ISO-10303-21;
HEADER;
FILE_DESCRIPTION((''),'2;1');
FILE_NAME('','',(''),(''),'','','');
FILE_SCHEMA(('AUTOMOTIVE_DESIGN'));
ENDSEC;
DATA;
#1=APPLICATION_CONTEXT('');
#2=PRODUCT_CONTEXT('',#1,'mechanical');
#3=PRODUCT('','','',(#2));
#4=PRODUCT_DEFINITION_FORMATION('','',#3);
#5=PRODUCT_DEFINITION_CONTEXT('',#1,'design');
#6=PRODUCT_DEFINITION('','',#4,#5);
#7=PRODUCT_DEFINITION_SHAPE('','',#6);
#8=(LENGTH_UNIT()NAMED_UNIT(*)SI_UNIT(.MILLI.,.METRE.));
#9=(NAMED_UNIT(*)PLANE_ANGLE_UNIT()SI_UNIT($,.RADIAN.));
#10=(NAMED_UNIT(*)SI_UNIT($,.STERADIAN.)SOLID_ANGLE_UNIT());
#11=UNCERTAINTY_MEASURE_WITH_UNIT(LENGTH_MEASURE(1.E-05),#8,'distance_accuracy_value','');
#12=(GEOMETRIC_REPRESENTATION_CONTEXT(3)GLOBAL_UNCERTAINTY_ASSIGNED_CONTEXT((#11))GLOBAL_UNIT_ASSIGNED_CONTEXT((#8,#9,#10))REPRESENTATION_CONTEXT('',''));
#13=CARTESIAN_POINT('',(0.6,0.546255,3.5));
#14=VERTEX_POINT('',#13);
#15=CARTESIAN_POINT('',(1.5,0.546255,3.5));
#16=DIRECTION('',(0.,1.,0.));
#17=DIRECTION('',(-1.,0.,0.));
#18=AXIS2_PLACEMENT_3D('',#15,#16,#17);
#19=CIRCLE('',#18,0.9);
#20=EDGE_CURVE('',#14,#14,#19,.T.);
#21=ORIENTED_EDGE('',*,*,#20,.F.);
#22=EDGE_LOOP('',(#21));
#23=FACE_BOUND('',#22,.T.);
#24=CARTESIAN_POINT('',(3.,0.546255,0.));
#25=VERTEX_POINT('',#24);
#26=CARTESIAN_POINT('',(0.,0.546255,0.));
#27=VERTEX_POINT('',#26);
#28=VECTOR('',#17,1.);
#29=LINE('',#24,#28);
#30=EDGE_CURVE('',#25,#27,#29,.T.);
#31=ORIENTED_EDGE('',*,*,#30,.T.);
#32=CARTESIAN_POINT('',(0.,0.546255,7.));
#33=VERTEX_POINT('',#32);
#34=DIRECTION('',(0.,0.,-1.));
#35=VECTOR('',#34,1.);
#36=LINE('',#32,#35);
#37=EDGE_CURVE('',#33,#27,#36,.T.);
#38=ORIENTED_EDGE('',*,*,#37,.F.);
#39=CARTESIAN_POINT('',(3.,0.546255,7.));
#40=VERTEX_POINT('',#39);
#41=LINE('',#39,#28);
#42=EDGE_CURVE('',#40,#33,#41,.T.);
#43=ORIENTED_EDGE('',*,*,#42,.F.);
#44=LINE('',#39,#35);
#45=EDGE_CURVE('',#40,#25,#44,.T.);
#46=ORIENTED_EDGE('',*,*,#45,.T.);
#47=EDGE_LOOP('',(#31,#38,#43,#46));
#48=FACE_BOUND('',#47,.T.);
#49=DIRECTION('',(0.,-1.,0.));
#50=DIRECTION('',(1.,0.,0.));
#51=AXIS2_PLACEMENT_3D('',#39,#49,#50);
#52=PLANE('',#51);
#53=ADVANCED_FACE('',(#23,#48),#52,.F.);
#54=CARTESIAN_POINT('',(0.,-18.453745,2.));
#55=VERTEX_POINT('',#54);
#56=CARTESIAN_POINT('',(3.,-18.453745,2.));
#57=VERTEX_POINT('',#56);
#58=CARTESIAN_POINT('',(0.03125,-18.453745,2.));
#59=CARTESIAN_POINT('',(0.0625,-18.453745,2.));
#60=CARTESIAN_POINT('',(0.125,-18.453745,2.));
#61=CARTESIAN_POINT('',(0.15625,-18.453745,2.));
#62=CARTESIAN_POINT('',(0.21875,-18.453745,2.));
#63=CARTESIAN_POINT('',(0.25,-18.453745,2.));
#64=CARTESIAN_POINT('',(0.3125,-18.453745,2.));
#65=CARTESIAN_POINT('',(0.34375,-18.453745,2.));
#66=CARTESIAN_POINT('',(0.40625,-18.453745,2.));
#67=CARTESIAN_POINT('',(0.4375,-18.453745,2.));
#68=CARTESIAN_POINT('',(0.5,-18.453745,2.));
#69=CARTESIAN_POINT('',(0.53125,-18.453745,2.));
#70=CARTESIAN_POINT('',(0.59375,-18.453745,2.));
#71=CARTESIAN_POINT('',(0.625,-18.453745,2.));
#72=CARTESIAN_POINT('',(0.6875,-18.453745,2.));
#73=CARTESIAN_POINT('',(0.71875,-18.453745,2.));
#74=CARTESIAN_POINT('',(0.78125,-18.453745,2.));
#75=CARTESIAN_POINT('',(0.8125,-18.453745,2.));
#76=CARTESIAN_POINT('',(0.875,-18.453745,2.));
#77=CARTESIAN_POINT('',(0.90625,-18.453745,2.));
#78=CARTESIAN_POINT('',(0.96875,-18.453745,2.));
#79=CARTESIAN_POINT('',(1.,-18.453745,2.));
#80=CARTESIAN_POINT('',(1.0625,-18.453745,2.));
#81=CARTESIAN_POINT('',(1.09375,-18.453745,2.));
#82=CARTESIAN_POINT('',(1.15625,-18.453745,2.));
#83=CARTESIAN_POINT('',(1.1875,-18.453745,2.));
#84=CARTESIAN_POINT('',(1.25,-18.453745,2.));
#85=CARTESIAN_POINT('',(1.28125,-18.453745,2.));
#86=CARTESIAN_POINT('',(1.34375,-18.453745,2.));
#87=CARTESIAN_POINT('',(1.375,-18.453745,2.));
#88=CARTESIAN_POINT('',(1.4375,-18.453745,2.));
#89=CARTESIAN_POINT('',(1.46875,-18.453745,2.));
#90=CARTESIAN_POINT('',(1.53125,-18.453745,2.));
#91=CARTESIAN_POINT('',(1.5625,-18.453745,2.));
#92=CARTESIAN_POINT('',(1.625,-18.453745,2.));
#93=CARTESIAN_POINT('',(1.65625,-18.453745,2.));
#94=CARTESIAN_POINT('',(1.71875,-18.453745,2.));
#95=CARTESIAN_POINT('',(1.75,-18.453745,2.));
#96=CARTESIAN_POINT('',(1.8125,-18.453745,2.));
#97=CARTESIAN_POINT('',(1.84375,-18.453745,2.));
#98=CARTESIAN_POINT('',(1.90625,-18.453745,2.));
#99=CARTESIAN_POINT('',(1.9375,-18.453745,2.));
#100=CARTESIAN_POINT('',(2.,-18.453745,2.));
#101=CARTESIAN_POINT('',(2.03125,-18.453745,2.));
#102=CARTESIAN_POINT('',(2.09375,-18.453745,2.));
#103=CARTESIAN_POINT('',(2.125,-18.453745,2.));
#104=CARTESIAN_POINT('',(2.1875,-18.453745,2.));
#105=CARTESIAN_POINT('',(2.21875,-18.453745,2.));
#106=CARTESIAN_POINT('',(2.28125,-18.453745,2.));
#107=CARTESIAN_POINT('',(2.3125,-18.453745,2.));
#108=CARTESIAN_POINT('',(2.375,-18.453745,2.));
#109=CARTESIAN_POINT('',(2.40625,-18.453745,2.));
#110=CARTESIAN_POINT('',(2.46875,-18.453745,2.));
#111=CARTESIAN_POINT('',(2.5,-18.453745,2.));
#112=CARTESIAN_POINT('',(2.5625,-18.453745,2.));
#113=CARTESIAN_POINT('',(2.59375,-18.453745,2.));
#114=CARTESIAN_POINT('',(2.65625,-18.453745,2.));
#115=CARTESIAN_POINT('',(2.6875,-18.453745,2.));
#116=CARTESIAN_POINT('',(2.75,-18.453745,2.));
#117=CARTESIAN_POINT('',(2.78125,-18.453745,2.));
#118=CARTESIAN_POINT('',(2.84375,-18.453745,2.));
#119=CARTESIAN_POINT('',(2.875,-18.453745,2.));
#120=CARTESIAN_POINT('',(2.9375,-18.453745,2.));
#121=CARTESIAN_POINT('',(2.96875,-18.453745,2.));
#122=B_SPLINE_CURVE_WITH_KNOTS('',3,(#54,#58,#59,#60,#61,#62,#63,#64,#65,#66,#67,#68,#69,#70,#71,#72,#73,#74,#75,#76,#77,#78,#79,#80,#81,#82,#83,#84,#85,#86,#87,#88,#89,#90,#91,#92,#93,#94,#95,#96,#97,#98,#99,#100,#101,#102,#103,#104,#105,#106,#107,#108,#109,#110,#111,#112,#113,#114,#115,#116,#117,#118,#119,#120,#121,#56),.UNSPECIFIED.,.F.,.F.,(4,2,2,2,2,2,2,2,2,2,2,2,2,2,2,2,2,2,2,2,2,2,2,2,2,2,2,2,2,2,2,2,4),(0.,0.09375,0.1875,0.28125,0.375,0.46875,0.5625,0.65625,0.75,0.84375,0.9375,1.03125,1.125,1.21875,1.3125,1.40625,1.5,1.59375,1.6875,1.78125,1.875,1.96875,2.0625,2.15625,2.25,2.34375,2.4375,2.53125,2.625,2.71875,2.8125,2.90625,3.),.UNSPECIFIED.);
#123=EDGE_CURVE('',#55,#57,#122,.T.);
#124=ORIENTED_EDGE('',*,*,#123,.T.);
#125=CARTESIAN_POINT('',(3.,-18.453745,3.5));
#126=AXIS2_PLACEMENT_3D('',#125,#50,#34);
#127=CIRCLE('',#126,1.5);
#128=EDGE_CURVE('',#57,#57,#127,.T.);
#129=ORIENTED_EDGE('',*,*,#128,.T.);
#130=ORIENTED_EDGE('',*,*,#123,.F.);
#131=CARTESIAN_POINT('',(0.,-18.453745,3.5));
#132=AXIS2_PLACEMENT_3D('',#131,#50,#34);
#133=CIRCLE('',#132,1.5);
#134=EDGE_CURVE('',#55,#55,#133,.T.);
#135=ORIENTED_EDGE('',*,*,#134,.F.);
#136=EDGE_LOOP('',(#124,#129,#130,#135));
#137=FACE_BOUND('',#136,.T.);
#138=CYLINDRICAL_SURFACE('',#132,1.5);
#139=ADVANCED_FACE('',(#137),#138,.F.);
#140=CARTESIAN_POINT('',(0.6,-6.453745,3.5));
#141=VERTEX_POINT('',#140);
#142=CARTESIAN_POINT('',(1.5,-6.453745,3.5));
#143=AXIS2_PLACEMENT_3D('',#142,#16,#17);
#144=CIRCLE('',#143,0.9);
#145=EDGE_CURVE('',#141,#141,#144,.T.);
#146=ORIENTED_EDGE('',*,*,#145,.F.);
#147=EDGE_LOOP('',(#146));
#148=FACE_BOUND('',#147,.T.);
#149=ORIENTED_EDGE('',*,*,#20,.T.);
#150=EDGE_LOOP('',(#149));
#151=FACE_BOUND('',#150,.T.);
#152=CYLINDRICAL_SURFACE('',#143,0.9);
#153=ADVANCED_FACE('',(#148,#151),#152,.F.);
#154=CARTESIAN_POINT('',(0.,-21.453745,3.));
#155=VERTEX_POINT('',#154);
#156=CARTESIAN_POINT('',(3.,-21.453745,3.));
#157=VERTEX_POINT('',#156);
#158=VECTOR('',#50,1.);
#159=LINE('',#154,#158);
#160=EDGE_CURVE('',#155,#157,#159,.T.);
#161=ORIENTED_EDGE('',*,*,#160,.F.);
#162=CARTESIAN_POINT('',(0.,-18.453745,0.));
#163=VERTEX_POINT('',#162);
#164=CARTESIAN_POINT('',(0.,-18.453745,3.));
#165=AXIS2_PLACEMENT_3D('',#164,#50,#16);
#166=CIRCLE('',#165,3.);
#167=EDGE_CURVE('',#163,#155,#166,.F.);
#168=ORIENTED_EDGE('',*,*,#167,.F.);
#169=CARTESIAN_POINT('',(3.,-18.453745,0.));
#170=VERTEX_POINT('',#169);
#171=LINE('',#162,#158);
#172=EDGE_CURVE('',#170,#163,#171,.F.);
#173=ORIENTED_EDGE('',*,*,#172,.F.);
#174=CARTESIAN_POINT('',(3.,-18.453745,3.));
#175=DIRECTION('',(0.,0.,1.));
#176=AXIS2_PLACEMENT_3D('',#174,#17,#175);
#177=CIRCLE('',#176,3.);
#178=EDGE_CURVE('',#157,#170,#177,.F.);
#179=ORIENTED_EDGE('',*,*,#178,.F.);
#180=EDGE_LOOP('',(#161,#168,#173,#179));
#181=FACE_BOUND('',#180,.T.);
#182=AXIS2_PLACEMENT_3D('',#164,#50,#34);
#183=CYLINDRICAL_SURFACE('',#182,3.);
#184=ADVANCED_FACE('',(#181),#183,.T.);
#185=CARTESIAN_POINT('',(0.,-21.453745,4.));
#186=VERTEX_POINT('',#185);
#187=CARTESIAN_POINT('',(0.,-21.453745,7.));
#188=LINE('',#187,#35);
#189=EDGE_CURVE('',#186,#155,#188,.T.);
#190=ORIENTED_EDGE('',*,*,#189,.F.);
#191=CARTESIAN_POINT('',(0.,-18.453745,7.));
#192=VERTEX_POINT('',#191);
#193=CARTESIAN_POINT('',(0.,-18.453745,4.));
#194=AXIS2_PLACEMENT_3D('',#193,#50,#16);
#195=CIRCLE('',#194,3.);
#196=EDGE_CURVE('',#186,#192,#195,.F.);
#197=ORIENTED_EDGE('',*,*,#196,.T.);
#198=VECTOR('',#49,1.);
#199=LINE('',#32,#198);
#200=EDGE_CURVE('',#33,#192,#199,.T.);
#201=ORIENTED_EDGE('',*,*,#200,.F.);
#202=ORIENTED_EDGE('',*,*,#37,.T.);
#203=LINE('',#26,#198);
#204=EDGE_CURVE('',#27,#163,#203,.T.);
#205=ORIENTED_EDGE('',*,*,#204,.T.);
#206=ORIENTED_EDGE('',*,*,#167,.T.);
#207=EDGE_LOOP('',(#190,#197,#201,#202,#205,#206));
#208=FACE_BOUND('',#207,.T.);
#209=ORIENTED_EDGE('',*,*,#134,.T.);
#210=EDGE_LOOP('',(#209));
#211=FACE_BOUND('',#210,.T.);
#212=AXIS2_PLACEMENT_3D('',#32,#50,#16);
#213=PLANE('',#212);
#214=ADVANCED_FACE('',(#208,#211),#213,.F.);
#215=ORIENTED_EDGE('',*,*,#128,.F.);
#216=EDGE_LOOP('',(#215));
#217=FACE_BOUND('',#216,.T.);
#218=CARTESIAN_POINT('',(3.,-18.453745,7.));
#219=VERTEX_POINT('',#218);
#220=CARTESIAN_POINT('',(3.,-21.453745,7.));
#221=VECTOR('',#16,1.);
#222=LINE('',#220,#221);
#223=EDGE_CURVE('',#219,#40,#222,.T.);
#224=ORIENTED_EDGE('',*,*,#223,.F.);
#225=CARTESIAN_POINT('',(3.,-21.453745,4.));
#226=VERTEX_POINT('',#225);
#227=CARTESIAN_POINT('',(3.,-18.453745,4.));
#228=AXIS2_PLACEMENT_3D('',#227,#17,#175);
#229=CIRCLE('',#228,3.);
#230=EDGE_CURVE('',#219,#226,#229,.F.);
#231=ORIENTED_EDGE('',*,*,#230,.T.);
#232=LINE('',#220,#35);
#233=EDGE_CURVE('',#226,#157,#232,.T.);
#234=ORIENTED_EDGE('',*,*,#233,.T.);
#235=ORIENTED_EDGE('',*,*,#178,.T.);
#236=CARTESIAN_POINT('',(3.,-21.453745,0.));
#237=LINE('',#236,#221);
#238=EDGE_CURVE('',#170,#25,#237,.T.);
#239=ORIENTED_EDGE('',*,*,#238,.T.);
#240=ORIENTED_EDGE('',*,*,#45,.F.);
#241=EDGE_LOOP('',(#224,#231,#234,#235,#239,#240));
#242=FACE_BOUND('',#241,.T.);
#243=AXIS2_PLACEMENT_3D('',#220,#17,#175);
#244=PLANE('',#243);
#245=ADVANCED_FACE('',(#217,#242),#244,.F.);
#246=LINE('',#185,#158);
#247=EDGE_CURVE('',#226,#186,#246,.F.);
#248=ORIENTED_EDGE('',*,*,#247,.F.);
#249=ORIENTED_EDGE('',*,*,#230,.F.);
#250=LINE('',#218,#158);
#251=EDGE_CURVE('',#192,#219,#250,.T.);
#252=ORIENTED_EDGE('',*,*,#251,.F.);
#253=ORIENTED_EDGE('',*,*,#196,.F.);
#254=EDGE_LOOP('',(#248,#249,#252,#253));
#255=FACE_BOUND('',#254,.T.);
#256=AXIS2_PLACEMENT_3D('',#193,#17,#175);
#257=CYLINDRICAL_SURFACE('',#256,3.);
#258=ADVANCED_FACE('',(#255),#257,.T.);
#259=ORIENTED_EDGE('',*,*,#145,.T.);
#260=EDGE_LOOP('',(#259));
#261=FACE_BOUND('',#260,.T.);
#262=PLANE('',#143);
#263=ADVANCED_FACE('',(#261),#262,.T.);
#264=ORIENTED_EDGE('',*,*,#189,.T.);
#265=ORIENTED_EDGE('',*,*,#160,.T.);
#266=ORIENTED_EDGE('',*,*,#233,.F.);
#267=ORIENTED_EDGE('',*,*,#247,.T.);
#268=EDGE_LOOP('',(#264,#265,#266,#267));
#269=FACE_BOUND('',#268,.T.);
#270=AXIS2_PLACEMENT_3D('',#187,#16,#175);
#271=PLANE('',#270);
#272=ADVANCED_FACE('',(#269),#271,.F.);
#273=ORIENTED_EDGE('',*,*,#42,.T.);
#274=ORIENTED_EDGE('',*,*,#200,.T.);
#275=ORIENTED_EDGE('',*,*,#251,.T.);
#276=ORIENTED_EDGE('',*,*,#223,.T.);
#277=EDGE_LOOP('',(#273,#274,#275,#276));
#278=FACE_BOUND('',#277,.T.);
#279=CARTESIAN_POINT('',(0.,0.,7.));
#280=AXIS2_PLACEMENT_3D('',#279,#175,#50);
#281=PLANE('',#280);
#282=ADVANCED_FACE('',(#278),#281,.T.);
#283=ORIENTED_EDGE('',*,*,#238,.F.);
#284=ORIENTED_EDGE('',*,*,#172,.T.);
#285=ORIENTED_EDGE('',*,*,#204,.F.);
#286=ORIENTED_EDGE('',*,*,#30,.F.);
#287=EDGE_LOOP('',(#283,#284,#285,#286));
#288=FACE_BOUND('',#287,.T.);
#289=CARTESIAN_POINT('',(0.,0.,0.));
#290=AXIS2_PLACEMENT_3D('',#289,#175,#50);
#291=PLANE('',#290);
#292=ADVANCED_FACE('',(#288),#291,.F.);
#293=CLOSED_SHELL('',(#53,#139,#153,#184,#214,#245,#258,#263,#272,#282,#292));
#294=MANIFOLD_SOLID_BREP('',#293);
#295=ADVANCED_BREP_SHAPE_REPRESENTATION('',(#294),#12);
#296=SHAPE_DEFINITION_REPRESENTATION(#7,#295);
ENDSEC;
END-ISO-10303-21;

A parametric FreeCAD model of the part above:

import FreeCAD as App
import Part
import Sketcher
from FreeCAD import Vector
Q = App.Units.Quantity


def edges_at(feature, points):
    """Names of the edges that pass closest to the given points."""
    edges = feature.Shape.Edges
    near = lambda p: min(range(len(edges)), key=lambda i: edges[i].distToShape(Part.Vertex(*p))[0])
    return sorted({f"Edge{near(p) + 1}" for p in points})


def add_polygon(sketch, points):
    """Adds a closed chain of lines whose ends are joined by coincident constraints."""
    first, n = sketch.GeometryCount, len(points)
    for a, b in zip(points, points[1:] + points[:1]):
        sketch.addGeometry(Part.LineSegment(App.Vector(*a, 0), App.Vector(*b, 0)), False)
    for i in range(n):
        sketch.addConstraint(Sketcher.Constraint("Coincident", first + i, 2, first + (i + 1) % n, 1))

doc = App.newDocument("Part")
body = doc.addObject("PartDesign::Body", "Body")

sketch1 = body.newObject("Sketcher::SketchObject", "Sketch")
sketch1.AttachmentSupport = (doc.getObject("XY_Plane"), [""])
sketch1.MapMode = "FlatFace"
add_polygon(sketch1, [(0, 0.5), (0, -21.5), (3, -21.5), (3, 0.5)])
sketch1.addConstraint(Sketcher.Constraint("Vertical", 0))
sketch1.addConstraint(Sketcher.Constraint("Horizontal", 1))
sketch1.addConstraint(Sketcher.Constraint("Vertical", 2))
sketch1.addConstraint(Sketcher.Constraint("Horizontal", 3))
sketch1.addConstraint(Sketcher.Constraint("PointOnObject", 0, 2, -2))
sketch1.addConstraint(Sketcher.Constraint("DistanceX", 1, 1, 1, 2, Q("3 mm")))
sketch1.addConstraint(Sketcher.Constraint("DistanceY", 0, 2, 0, 1, Q("22 mm")))
sketch1.addConstraint(Sketcher.Constraint("DistanceY", 0, 2, -1, 1, Q("21.453745 mm")))
pad1 = body.newObject("PartDesign::Pad", "Pad")
pad1.Profile = sketch1
pad1.Length = 7

sketch2 = body.newObject("Sketcher::SketchObject", "Sketch001")
sketch2.AttachmentSupport = (doc.getObject("YZ_Plane"), [""])
sketch2.MapMode = "FlatFace"
sketch2.AttachmentOffset = App.Placement(Vector(0, 0, 3), App.Rotation())
sketch2.addGeometry(Part.Circle(Vector(-18.5, 3.5, 0), Vector(0, 0, 1), 1.5), False)
sketch2.addConstraint(Sketcher.Constraint("Diameter", 0, Q("3 mm")))
sketch2.addConstraint(Sketcher.Constraint("DistanceY", -1, 1, 0, 3, Q("3.5 mm")))
sketch2.addConstraint(Sketcher.Constraint("DistanceX", 0, 3, -1, 1, Q("18.453745 mm")))
pocket1 = body.newObject("PartDesign::Pocket", "Pocket")
pocket1.Profile = sketch2
pocket1.Type = "ThroughAll"
doc.recompute()

fillet = body.newObject("PartDesign::Fillet", "Fillet")
fillet.Base = (pocket1, edges_at(pocket1, [(1.5, -21.454, 7), (1.5, -21.454, 0)]))
fillet.Radius = 3

sketch3 = body.newObject("Sketcher::SketchObject", "Sketch002")
sketch3.AttachmentSupport = (doc.getObject("XZ_Plane"), [""])
sketch3.MapMode = "FlatFace"
sketch3.AttachmentOffset = App.Placement(Vector(0, 0, -0.546255), App.Rotation())
sketch3.addGeometry(Part.Circle(Vector(1.5, 3.5, 0), Vector(0, 0, 1), 0.9), False)
sketch3.addConstraint(Sketcher.Constraint("Diameter", 0, Q("1.8 mm")))
sketch3.addConstraint(Sketcher.Constraint("DistanceX", -1, 1, 0, 3, Q("1.5 mm")))
sketch3.addConstraint(Sketcher.Constraint("DistanceY", -1, 1, 0, 3, Q("3.5 mm")))
pocket2 = body.newObject("PartDesign::Pocket", "Pocket001")
pocket2.Profile = sketch3
pocket2.Length = 7
pocket2.Reversed = True

doc.recompute()
